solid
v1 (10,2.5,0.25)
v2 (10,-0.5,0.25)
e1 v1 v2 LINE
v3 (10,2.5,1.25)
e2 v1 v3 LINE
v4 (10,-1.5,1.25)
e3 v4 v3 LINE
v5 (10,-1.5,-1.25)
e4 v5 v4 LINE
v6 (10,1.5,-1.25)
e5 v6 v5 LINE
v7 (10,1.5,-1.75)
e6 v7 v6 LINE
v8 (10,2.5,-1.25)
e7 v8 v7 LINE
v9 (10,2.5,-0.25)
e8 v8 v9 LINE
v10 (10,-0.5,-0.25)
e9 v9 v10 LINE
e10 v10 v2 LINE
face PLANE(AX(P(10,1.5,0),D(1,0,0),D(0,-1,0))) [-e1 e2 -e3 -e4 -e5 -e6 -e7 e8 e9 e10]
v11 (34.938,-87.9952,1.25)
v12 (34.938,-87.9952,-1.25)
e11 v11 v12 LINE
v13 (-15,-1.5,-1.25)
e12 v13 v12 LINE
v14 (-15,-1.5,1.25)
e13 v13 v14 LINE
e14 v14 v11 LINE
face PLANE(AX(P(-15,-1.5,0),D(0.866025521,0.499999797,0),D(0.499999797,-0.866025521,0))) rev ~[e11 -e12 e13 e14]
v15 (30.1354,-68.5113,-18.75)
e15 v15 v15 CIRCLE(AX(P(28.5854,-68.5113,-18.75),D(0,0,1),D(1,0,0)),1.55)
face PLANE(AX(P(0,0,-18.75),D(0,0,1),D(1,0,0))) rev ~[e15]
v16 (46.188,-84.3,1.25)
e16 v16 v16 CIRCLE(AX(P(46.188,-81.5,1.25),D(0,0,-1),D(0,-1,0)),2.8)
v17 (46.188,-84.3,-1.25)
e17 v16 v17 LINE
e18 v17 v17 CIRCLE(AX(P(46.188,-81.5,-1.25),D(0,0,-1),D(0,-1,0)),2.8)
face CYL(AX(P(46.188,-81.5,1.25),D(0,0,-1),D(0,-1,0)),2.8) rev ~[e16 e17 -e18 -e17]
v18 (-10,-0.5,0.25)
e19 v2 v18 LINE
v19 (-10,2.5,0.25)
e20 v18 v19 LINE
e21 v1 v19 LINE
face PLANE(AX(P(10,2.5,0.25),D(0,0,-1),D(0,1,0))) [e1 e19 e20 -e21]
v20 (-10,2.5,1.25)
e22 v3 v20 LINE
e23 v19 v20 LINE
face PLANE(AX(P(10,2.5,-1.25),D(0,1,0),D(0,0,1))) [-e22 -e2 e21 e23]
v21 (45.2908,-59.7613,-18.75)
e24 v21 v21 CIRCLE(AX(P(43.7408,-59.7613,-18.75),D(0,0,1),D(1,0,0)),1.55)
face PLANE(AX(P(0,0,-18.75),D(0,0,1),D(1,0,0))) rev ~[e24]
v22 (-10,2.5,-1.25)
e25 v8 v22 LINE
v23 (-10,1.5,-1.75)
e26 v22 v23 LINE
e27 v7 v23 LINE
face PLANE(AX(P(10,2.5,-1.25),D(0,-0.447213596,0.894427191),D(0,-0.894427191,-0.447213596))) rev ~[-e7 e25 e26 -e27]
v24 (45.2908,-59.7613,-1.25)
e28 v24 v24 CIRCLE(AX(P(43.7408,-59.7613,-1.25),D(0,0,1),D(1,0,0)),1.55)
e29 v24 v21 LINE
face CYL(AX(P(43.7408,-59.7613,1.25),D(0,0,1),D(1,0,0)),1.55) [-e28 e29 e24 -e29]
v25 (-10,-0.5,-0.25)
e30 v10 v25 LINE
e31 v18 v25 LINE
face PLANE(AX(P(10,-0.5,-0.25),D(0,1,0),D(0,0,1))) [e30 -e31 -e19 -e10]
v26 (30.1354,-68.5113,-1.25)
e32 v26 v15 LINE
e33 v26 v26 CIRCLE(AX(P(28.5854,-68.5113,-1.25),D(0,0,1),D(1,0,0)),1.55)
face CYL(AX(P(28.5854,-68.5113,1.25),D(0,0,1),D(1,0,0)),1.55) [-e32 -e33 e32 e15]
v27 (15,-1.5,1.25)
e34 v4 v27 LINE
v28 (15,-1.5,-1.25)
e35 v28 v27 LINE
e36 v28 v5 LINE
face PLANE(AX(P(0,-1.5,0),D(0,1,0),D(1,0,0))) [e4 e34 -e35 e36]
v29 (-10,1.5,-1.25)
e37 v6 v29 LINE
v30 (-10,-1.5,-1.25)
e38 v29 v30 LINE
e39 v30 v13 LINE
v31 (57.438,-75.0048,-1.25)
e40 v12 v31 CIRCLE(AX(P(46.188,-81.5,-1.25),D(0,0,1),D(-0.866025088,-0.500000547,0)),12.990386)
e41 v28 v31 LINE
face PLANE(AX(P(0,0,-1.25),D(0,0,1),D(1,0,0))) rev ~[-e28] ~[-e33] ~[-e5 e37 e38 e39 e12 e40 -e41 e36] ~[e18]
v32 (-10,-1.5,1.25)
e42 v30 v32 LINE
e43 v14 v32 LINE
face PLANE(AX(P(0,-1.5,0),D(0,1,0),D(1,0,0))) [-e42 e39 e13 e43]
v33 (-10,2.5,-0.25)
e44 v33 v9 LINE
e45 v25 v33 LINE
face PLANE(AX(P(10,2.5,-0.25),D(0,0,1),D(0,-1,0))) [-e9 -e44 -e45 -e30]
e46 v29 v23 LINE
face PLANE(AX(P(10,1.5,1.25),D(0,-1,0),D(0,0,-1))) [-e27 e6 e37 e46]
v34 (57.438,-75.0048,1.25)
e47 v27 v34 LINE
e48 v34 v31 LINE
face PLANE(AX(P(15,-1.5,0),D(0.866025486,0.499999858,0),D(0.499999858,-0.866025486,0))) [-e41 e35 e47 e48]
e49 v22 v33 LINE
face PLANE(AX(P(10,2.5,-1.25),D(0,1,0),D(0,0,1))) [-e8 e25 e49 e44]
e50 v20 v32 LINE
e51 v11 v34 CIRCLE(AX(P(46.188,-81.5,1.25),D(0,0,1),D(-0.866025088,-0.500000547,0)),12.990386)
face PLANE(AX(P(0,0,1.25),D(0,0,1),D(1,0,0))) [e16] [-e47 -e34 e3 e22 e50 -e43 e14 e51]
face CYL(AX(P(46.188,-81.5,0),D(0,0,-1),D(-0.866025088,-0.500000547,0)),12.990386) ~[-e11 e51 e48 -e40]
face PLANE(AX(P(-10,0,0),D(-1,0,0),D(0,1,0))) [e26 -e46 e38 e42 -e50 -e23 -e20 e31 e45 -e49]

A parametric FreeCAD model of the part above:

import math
import FreeCAD as App
import Part
import Sketcher

V = App.Vector
Q = App.Units.Quantity

doc = App.newDocument("Part")
body = doc.addObject("PartDesign::Body", "Body")

sketch1 = body.newObject("Sketcher::SketchObject", "Sketch")
sketch1.AttachmentSupport = (doc.getObject("XY_Plane"), [""])
sketch1.MapMode = "FlatFace"
sketch1.addGeometry([
    Part.LineSegment(V(57, -75, 0), V(15, -2, 0)),
    Part.LineSegment(V(15, -2, 0), V(-15, -2, 0)),
    Part.LineSegment(V(-15, -2, 0), V(35, -88, 0)),
    Part.ArcOfCircle(Part.Circle(V(46, -82, 0), V(0, 0, 1), 13), math.radians(-150), math.radians(30)),
], False)
sketch1.addConstraint([
    Sketcher.Constraint("Coincident", 0, 2, 1, 1),
    Sketcher.Constraint("Coincident", 1, 2, 2, 1),
    Sketcher.Constraint("Tangent", 2, 2, 3, 1),
    Sketcher.Constraint("Tangent", 3, 2, 0, 1),
    Sketcher.Constraint("Horizontal", 1),
    Sketcher.Constraint("Parallel", 0, 2),
    Sketcher.Constraint("DistanceX", 1, 2, 1, 1, Q("30 mm")),
    Sketcher.Constraint("DistanceY", 3, 3, 0, 2, Q("80 mm")),
    Sketcher.Constraint("Radius", 3, Q("12.9904 mm")),
    Sketcher.Constraint("DistanceX", -1, 1, 0, 2, Q("15 mm")),
    Sketcher.Constraint("DistanceY", 3, 3, -1, 1, Q("81.5 mm")),
])
pad1 = body.newObject("PartDesign::Pad", "Pad")
pad1.Profile = sketch1
pad1.Length = 2.5
pad1.Midplane = True

sketch2 = body.newObject("Sketcher::SketchObject", "Sketch001")
sketch2.AttachmentSupport = (doc.getObject("XY_Plane"), [""])
sketch2.MapMode = "FlatFace"
sketch2.AttachmentOffset = App.Placement(V(0, 0, 1.25), App.Rotation())
sketch2.addGeometry(Part.Circle(V(46.2, -81.5, 0), V(0, 0, 1), 2.8), False)
sketch2.addConstraint([
    Sketcher.Constraint("Diameter", 0, Q("5.6 mm")),
    Sketcher.Constraint("DistanceY", 0, 3, -1, 1, Q("81.5 mm")),
    Sketcher.Constraint("DistanceX", -1, 1, 0, 3, Q("46.188 mm")),
])
doc.recompute()
hole = body.newObject("PartDesign::Hole", "Hole")
hole.Profile = sketch2
hole.ThreadType = "None"
hole.Diameter = 5.6
hole.DepthType = "ThroughAll"

sketch3 = body.newObject("Sketcher::SketchObject", "Sketch002")
sketch3.AttachmentSupport = (doc.getObject("XY_Plane"), [""])
sketch3.MapMode = "FlatFace"
sketch3.AttachmentOffset = App.Placement(V(0, 0, 1.25), App.Rotation())
sketch3.addGeometry([
    Part.Circle(V(28.6, -68.5, 0), V(0, 0, 1), 1.6),
    Part.Circle(V(43.7, -59.8, 0), V(0, 0, 1), 1.6),
], False)
sketch3.addConstraint([
    Sketcher.Constraint("Equal", 0, 1),
    Sketcher.Constraint("Diameter", 0, Q("3.1 mm")),
    Sketcher.Constraint("DistanceY", 0, 3, 1, 3, Q("8.75 mm")),
    Sketcher.Constraint("DistanceX", -1, 1, 0, 3, Q("28.5854 mm")),
    Sketcher.Constraint("DistanceY", 0, 3, -1, 1, Q("68.5113 mm")),
    Sketcher.Constraint("DistanceX", -1, 1, 1, 3, Q("43.7408 mm")),
])
pad2 = body.newObject("PartDesign::Pad", "Pad001")
pad2.Profile = sketch3
pad2.Length = 20
pad2.Reversed = True

sketch4 = body.newObject("Sketcher::SketchObject", "Sketch003")
sketch4.AttachmentSupport = (doc.getObject("XY_Plane"), [""])
sketch4.MapMode = "FlatFace"
sketch4.addGeometry([
    Part.LineSegment(V(-10, 1.5, 0), V(-10, -1.5, 0)),
    Part.LineSegment(V(-10, -1.5, 0), V(10, -1.5, 0)),
    Part.LineSegment(V(10, -1.5, 0), V(10, 1.5, 0)),
    Part.LineSegment(V(10, 1.5, 0), V(-10, 1.5, 0)),
], False)
sketch4.addConstraint([
    Sketcher.Constraint("Coincident", 0, 2, 1, 1),
    Sketcher.Constraint("Coincident", 1, 2, 2, 1),
    Sketcher.Constraint("Coincident", 2, 2, 3, 1),
    Sketcher.Constraint("Coincident", 3, 2, 0, 1),
    Sketcher.Constraint("Vertical", 0),
    Sketcher.Constraint("Horizontal", 1),
    Sketcher.Constraint("Vertical", 2),
    Sketcher.Constraint("Horizontal", 3),
    Sketcher.Constraint("Symmetric", 0, 2, 2, 2, -1, 1),
    Sketcher.Constraint("DistanceX", 1, 1, 1, 2, Q("20 mm")),
    Sketcher.Constraint("DistanceY", 0, 2, 0, 1, Q("3 mm")),
])
pad3 = body.newObject("PartDesign::Pad", "Pad002")
pad3.Profile = sketch4
pad3.Length = 2.5
pad3.Midplane = True

sketch5 = body.newObject("Sketcher::SketchObject", "Sketch004")
sketch5.AttachmentSupport = (doc.getObject("YZ_Plane"), [""])
sketch5.MapMode = "FlatFace"
sketch5.AttachmentOffset = App.Placement(V(0, 0, 10), App.Rotation())
sketch5.addGeometry([
    Part.LineSegment(V(2.5, 1.2, 0), V(1.5, 1.2, 0)),
    Part.LineSegment(V(1.5, 1.2, 0), V(1.5, -1.8, 0)),
    Part.LineSegment(V(1.5, -1.8, 0), V(2.5, -1.2, 0)),
    Part.LineSegment(V(2.5, -1.2, 0), V(2.5, 1.2, 0)),
], False)
sketch5.addConstraint([
    Sketcher.Constraint("Coincident", 0, 2, 1, 1),
    Sketcher.Constraint("Coincident", 1, 2, 2, 1),
    Sketcher.Constraint("Coincident", 2, 2, 3, 1),
    Sketcher.Constraint("Coincident", 3, 2, 0, 1),
    Sketcher.Constraint("Horizontal", 0),
    Sketcher.Constraint("Vertical", 1),
    Sketcher.Constraint("Vertical", 3),
    Sketcher.Constraint("DistanceX", 0, 2, 0, 1, Q("1 mm")),
    Sketcher.Constraint("DistanceY", 1, 2, 2, 2, Q("0.5 mm")),
    Sketcher.Constraint("DistanceY", 1, 2, 1, 1, Q("3 mm")),
    Sketcher.Constraint("DistanceX", -1, 1, 0, 2, Q("1.5 mm")),
    Sketcher.Constraint("DistanceY", -1, 1, 0, 2, Q("1.25 mm")),
])
pad4 = body.newObject("PartDesign::Pad", "Pad003")
pad4.Profile = sketch5
pad4.Length = 20
pad4.Reversed = True

sketch6 = body.newObject("Sketcher::SketchObject", "Sketch005")
sketch6.AttachmentSupport = (doc.getObject("YZ_Plane"), [""])
sketch6.MapMode = "FlatFace"
sketch6.AttachmentOffset = App.Placement(V(0, 0, 10), App.Rotation())
sketch6.addGeometry([
    Part.LineSegment(V(-0.5, -0.2, 0), V(2.7, -0.2, 0)),
    Part.LineSegment(V(2.7, -0.2, 0), V(2.7, 0.2, 0)),
    Part.LineSegment(V(2.7, 0.2, 0), V(-0.5, 0.2, 0)),
    Part.LineSegment(V(-0.5, 0.2, 0), V(-0.5, -0.2, 0)),
], False)
sketch6.addConstraint([
    Sketcher.Constraint("Coincident", 0, 2, 1, 1),
    Sketcher.Constraint("Coincident", 1, 2, 2, 1),
    Sketcher.Constraint("Coincident", 2, 2, 3, 1),
    Sketcher.Constraint("Coincident", 3, 2, 0, 1),
    Sketcher.Constraint("Horizontal", 0),
    Sketcher.Constraint("Vertical", 1),
    Sketcher.Constraint("Horizontal", 2),
    Sketcher.Constraint("Vertical", 3),
    Sketcher.Constraint("DistanceY", 1, 1, 1, 2, Q("0.5 mm")),
    Sketcher.Constraint("DistanceX", 2, 2, -1, 1, Q("0.5 mm")),
    Sketcher.Constraint("DistanceY", 0, 2, -1, 1, Q("0.25 mm")),
    Sketcher.Constraint("DistanceX", 0, 1, 0, 2, Q("3.1974 mm")),
])
pocket1 = body.newObject("PartDesign::Pocket", "Pocket")
pocket1.Profile = sketch6
pocket1.Length = 20

doc.recompute()
